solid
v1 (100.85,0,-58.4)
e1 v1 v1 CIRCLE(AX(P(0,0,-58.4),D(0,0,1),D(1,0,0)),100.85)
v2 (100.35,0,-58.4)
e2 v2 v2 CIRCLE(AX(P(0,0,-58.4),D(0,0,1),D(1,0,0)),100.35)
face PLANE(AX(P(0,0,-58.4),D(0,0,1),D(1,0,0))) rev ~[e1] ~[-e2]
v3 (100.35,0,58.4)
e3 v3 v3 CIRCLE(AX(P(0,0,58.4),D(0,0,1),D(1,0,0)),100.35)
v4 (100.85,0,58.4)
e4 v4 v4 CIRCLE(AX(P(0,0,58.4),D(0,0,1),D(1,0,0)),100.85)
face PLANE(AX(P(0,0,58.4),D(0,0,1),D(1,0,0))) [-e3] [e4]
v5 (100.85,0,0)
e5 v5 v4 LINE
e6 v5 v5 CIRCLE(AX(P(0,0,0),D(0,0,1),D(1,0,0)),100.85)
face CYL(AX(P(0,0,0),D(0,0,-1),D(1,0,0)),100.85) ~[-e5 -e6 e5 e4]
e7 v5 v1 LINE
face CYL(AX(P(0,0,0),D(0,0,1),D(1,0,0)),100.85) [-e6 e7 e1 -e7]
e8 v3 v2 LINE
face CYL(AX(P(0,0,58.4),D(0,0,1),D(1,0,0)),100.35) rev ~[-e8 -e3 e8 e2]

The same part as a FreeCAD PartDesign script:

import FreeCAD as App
import Part
import Sketcher
Q = App.Units.Quantity

doc = App.newDocument("Part")
body = doc.addObject("PartDesign::Body", "Body")

# Sketch on XY plane
sketch1 = doc.addObject("Sketcher::SketchObject", "Sketch")
body.addObject(sketch1)
sketch1.AttachmentSupport = (doc.XY_Plane, [""])
sketch1.MapMode = "FlatFace"
sketch1.addGeometry(Part.Circle(App.Vector(0, 0, 0), App.Vector(0, 0, 1), 100.85), False)
sketch1.addConstraint([
    Sketcher.Constraint("Coincident", 0, 3, -1, 1),
    Sketcher.Constraint("Diameter", 0, Q("201.7 mm")),
])
pad1 = doc.addObject("PartDesign::Pad", "Pad")
body.addObject(pad1)
pad1.Profile = sketch1
pad1.Length = 116.8
pad1.Midplane = True

# Sketch on XY plane
sketch2 = doc.addObject("Sketcher::SketchObject", "Sketch001")
body.addObject(sketch2)
sketch2.AttachmentSupport = (doc.XY_Plane, [""])
sketch2.MapMode = "FlatFace"
sketch2.AttachmentOffset = App.Placement(App.Vector(0, 0, 58.4), App.Rotation())
sketch2.addGeometry(Part.Circle(App.Vector(0, 0, 0), App.Vector(0, 0, 1), 100.35), False)
sketch2.addConstraint([
    Sketcher.Constraint("Coincident", 0, 3, -1, 1),
    Sketcher.Constraint("Diameter", 0, Q("200.7 mm")),
])
pocket1 = doc.addObject("PartDesign::Pocket", "Pocket")
body.addObject(pocket1)
pocket1.Profile = sketch2
pocket1.Type = "ThroughAll"

doc.recompute()
